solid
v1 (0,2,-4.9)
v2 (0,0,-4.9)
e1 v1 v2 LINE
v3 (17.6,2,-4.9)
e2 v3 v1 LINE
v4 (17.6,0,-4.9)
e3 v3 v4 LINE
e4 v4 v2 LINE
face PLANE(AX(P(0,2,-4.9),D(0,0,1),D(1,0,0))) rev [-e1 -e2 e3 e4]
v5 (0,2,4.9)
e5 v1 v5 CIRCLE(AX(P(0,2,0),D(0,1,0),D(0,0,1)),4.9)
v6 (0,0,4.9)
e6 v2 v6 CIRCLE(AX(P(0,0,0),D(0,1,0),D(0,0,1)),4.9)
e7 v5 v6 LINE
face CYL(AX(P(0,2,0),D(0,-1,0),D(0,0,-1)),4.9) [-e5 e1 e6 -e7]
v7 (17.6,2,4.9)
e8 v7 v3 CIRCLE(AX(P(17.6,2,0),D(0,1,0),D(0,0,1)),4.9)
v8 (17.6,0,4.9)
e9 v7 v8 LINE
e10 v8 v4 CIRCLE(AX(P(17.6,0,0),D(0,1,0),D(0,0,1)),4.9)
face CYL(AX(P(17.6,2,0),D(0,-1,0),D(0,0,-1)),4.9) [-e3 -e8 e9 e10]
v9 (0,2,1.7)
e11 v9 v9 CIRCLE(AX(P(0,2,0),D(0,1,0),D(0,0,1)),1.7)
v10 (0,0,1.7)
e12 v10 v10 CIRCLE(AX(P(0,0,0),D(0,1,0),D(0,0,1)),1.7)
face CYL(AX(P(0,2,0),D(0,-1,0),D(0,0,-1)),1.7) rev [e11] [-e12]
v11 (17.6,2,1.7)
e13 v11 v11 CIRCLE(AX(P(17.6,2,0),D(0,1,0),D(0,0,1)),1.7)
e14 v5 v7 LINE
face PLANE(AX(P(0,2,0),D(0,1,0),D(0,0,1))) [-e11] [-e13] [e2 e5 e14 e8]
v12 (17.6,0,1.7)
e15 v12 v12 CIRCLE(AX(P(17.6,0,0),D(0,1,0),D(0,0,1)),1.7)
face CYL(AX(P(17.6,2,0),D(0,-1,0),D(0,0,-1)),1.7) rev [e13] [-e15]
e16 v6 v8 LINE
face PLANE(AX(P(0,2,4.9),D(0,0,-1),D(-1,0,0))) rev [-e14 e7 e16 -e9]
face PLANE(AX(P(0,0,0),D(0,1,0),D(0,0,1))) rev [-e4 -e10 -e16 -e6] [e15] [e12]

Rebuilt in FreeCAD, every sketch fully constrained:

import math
import FreeCAD as App
import Part
import Sketcher

doc = App.newDocument("Part")
params = doc.addObject("Spreadsheet::Sheet", "Params")
for row, (alias, value) in enumerate([
    ("sketch1_diameter", "3.4 mm"),
    ("sketch1_radius", "4.9 mm"),
    ("sketch1_width", "17.6 mm"),
    ("pad1_length", "2 mm"),
], start=1):
    params.set(f"A{row}", alias)
    params.set(f"B{row}", "=" + value)
    params.setAlias(f"B{row}", alias)

body = doc.addObject("PartDesign::Body", "Body")

# Sketch on XZ plane
sketch1 = doc.addObject("Sketcher::SketchObject", "Sketch")
body.addObject(sketch1)
sketch1.AttachmentSupport = (doc.XZ_Plane, [""])
sketch1.MapMode = "FlatFace"
sketch1.addGeometry([
    Part.LineSegment(App.Vector(17.6, -4.9, 0), App.Vector(0, -4.9, 0)),  # 0
    Part.ArcOfCircle(Part.Circle(App.Vector(0, 0, 0), App.Vector(0, 0, 1), 4.9), math.radians(90), math.radians(270)),  # 1
    Part.LineSegment(App.Vector(0, 4.9, 0), App.Vector(17.6, 4.9, 0)),  # 2
    Part.ArcOfCircle(Part.Circle(App.Vector(17.6, 0, 0), App.Vector(0, 0, 1), 4.9), math.radians(-90), math.radians(90)),  # 3
    Part.Circle(App.Vector(17.6, 0, 0), App.Vector(0, 0, 1), 1.7),  # 4
    Part.Circle(App.Vector(0, 0, 0), App.Vector(0, 0, 1), 1.7),  # 5
], False)
sketch1.addConstraint([
    Sketcher.Constraint("Tangent", 0, 2, 1, 2),
    Sketcher.Constraint("Tangent", 1, 1, 2, 1),
    Sketcher.Constraint("Tangent", 2, 2, 3, 2),
    Sketcher.Constraint("Tangent", 3, 1, 0, 1),
    Sketcher.Constraint("Horizontal", 0),
    Sketcher.Constraint("Horizontal", 2),
    Sketcher.Constraint("Coincident", 1, 3, -1, 1),
    Sketcher.Constraint("Coincident", 5, 3, -1, 1),
    Sketcher.Constraint("Coincident", 4, 3, 3, 3),
    Sketcher.Constraint("Equal", 4, 5),
    Sketcher.Constraint("Diameter", 4, 3.4),
    Sketcher.Constraint("Radius", 1, 4.9),
    Sketcher.Constraint("DistanceX", 0, 2, 0, 1, 17.6),
])
sketch1.setExpression("Constraints[10]", "Params.sketch1_diameter")
sketch1.setExpression("Constraints[11]", "Params.sketch1_radius")
sketch1.setExpression("Constraints[12]", "Params.sketch1_width")
pad1 = doc.addObject("PartDesign::Pad", "Pad")
body.addObject(pad1)
pad1.Profile = sketch1
pad1.setExpression("Length", "Params.pad1_length")
pad1.Reversed = True

doc.recompute()
